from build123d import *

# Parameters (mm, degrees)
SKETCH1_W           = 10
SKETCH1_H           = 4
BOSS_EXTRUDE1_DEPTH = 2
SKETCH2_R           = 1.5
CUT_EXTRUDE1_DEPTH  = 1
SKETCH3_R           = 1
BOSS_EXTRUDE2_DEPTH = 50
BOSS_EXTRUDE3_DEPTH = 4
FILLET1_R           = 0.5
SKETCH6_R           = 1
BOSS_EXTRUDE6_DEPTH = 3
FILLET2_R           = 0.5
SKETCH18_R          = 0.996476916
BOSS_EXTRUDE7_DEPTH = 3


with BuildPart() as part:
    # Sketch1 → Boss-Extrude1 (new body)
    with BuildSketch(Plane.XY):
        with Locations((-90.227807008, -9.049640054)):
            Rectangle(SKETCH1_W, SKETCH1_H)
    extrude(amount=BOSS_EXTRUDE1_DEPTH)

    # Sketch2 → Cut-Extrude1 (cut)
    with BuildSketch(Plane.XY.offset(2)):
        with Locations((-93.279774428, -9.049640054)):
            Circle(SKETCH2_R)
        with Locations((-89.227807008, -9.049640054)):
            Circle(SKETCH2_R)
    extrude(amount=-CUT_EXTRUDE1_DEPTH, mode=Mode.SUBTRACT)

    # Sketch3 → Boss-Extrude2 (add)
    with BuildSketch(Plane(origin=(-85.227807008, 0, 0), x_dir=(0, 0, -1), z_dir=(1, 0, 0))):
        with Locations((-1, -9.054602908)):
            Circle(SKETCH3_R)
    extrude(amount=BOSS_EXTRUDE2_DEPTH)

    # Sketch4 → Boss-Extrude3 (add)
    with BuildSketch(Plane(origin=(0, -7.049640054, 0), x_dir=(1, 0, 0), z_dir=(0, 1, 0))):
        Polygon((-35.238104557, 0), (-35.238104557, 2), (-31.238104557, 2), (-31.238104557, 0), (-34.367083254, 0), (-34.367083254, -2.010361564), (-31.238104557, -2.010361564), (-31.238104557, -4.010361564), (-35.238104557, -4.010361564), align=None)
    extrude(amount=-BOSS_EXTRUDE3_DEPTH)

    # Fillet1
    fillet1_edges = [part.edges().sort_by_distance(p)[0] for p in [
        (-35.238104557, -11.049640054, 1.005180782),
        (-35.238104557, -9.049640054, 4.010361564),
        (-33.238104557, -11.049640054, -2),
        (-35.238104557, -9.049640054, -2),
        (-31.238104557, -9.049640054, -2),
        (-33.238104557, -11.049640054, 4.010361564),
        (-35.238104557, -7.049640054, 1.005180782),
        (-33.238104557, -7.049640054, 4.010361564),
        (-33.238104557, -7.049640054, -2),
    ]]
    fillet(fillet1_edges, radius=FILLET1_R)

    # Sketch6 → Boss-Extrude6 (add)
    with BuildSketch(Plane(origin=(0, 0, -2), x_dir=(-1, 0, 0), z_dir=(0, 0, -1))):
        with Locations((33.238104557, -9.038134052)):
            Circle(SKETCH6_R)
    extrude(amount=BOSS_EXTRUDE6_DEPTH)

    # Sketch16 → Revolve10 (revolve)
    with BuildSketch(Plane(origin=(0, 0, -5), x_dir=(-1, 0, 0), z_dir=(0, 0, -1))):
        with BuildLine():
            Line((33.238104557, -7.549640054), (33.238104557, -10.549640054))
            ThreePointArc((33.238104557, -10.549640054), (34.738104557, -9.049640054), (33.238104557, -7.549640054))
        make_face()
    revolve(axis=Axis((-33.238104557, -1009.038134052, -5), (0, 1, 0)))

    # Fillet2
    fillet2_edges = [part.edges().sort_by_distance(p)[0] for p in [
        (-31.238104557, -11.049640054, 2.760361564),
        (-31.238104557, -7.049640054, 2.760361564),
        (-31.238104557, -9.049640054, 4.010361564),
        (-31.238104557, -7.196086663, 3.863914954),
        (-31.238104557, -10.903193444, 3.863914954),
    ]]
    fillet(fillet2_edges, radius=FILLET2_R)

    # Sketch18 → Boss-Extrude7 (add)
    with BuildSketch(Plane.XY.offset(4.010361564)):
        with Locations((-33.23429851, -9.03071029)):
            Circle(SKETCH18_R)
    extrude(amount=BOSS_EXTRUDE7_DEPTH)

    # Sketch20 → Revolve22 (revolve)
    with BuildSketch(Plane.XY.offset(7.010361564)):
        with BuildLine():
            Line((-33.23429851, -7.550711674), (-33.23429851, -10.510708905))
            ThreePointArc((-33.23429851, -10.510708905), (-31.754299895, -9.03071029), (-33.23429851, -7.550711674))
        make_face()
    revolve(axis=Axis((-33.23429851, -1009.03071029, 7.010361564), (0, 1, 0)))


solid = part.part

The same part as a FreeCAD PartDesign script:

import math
import FreeCAD as App
import Part
import Sketcher

V = App.Vector


def edges_at(feature, points):
    """Names of the edges that pass closest to the given points."""
    edges = feature.Shape.Edges
    near = lambda p: min(range(len(edges)), key=lambda i: edges[i].distToShape(Part.Vertex(*p))[0])
    return sorted({f"Edge{near(p) + 1}" for p in points})

doc = App.newDocument("Part")
body = doc.addObject("PartDesign::Body", "Body")

# Sketch on XY plane
sketch1 = body.newObject("Sketcher::SketchObject", "Sketch")
sketch1.AttachmentSupport = (doc.getObject("XY_Plane"), [""])
sketch1.MapMode = "FlatFace"
sketch1.addGeometry([
    Part.LineSegment(V(-95.227807, -7.04964, 0), V(-95.227807, -11.04964, 0)),
    Part.LineSegment(V(-95.227807, -11.04964, 0), V(-85.227807, -11.04964, 0)),
    Part.LineSegment(V(-85.227807, -11.04964, 0), V(-85.227807, -7.04964, 0)),
    Part.LineSegment(V(-85.227807, -7.04964, 0), V(-95.227807, -7.04964, 0)),
], False)
sketch1.addConstraint([
    Sketcher.Constraint("Coincident", 0, 2, 1, 1),
    Sketcher.Constraint("Coincident", 1, 2, 2, 1),
    Sketcher.Constraint("Coincident", 2, 2, 3, 1),
    Sketcher.Constraint("Coincident", 3, 2, 0, 1),
    Sketcher.Constraint("Vertical", 0),
    Sketcher.Constraint("Horizontal", 1),
    Sketcher.Constraint("Vertical", 2),
    Sketcher.Constraint("Horizontal", 3),
    Sketcher.Constraint("DistanceX", 1, 1, 1, 2, 10.0),
    Sketcher.Constraint("DistanceY", 0, 2, 0, 1, 4.0),
    Sketcher.Constraint("DistanceY", 0, 2, -1, 1, 11.04964),
    Sketcher.Constraint("DistanceX", 0, 2, -1, 1, 95.227807),
])
pad1 = body.newObject("PartDesign::Pad", "Pad")
pad1.Profile = sketch1
pad1.Length = 2

# Sketch on XY plane
sketch2 = body.newObject("Sketcher::SketchObject", "Sketch001")
sketch2.AttachmentSupport = (doc.getObject("XY_Plane"), [""])
sketch2.MapMode = "FlatFace"
sketch2.AttachmentOffset = App.Placement(V(0, 0, 2), App.Rotation())
sketch2.addGeometry([
    Part.Circle(V(-93.279774, -9.04964, 0), V(0, 0, 1), 1.5),
    Part.Circle(V(-89.227807, -9.04964, 0), V(0, 0, 1), 1.5),
], False)
sketch2.addConstraint([
    Sketcher.Constraint("Equal", 0, 1),
    Sketcher.Constraint("Horizontal", 0, 3, 1, 3),
    Sketcher.Constraint("Diameter", 0, 3.0),
    Sketcher.Constraint("DistanceY", 0, 3, -1, 1, 9.04964),
    Sketcher.Constraint("DistanceX", 0, 3, -1, 1, 93.279774),
    Sketcher.Constraint("DistanceX", 1, 3, -1, 1, 89.227807),
])
pocket1 = body.newObject("PartDesign::Pocket", "Pocket")
pocket1.Profile = sketch2
pocket1.Length = 1

# Sketch on YZ plane
sketch3 = body.newObject("Sketcher::SketchObject", "Sketch002")
sketch3.AttachmentSupport = (doc.getObject("YZ_Plane"), [""])
sketch3.MapMode = "FlatFace"
sketch3.AttachmentOffset = App.Placement(V(0, 0, -85.227807), App.Rotation())
sketch3.addGeometry(Part.Circle(V(-9.054603, 1, 0), V(0, 0, 1), 1), False)
sketch3.addConstraint([
    Sketcher.Constraint("Diameter", 0, 2.0),
    Sketcher.Constraint("DistanceY", -1, 1, 0, 3, 1.0),
    Sketcher.Constraint("DistanceX", 0, 3, -1, 1, 9.054603),
])
pad2 = body.newObject("PartDesign::Pad", "Pad001")
pad2.Profile = sketch3
pad2.Length = 50

# Sketch on XZ plane
sketch4 = body.newObject("Sketcher::SketchObject", "Sketch003")
sketch4.AttachmentSupport = (doc.getObject("XZ_Plane"), [""])
sketch4.MapMode = "FlatFace"
sketch4.AttachmentOffset = App.Placement(V(0, 0, 7.04964), App.Rotation())
sketch4.addGeometry([
    Part.LineSegment(V(-35.238105, -2, 0), V(-35.238105, 4.010362, 0)),  # 0
    Part.LineSegment(V(-35.238105, 4.010362, 0), V(-31.238105, 4.010362, 0)),  # 1
    Part.LineSegment(V(-31.238105, 4.010362, 0), V(-31.238105, 2.010362, 0)),  # 2
    Part.LineSegment(V(-31.238105, 2.010362, 0), V(-34.367083, 2.010362, 0)),  # 3
    Part.LineSegment(V(-34.367083, 2.010362, 0), V(-34.367083, 0, 0)),  # 4
    Part.LineSegment(V(-34.367083, 0, 0), V(-31.238105, 0, 0)),  # 5
    Part.LineSegment(V(-31.238105, 0, 0), V(-31.238105, -2, 0)),  # 6
    Part.LineSegment(V(-31.238105, -2, 0), V(-35.238105, -2, 0)),  # 7
], False)
sketch4.addConstraint([
    Sketcher.Constraint("Coincident", 0, 2, 1, 1),
    Sketcher.Constraint("Coincident", 1, 2, 2, 1),
    Sketcher.Constraint("Coincident", 2, 2, 3, 1),
    Sketcher.Constraint("Coincident", 3, 2, 4, 1),
    Sketcher.Constraint("Coincident", 4, 2, 5, 1),
    Sketcher.Constraint("Coincident", 5, 2, 6, 1),
    Sketcher.Constraint("Coincident", 6, 2, 7, 1),
    Sketcher.Constraint("Coincident", 7, 2, 0, 1),
    Sketcher.Constraint("Vertical", 0),
    Sketcher.Constraint("Horizontal", 1),
    Sketcher.Constraint("Vertical", 2),
    Sketcher.Constraint("Horizontal", 3),
    Sketcher.Constraint("Vertical", 4),
    Sketcher.Constraint("Horizontal", 5),
    Sketcher.Constraint("Vertical", 6),
    Sketcher.Constraint("Horizontal", 7),
    Sketcher.Constraint("PointOnObject", 4, 2, -1),
    Sketcher.Constraint("Vertical", 2, 2, 5, 2),
    Sketcher.Constraint("Equal", 2, 6),
    Sketcher.Constraint("DistanceX", 1, 1, 1, 2, 4.0),
    Sketcher.Constraint("DistanceY", 2, 2, 2, 1, 2.0),
    Sketcher.Constraint("DistanceX", 3, 2, 3, 1, 3.128979),
    Sketcher.Constraint("DistanceY", 0, 1, 0, 2, 6.010362),
    Sketcher.Constraint("DistanceX", 0, 2, -1, 1, 35.238105),
])
pad3 = body.newObject("PartDesign::Pad", "Pad002")
pad3.Profile = sketch4
pad3.Length = 4
doc.recompute()

fillet = body.newObject("PartDesign::Fillet", "Fillet")
fillet.Base = (pad3, edges_at(pad3, [
    (-35.238, -11.05, 1.005),
    (-35.238, -9.05, 4.01),
    (-33.238, -11.05, -2),
    (-35.238, -9.05, -2),
    (-31.238, -9.05, -2),
    (-33.238, -11.05, 4.01),
    (-35.238, -7.05, 1.005),
    (-33.238, -7.05, 4.01),
    (-33.238, -7.05, -2),
]))
fillet.Radius = 0.5

# Sketch on XY plane
sketch5 = body.newObject("Sketcher::SketchObject", "Sketch004")
sketch5.AttachmentSupport = (doc.getObject("XY_Plane"), [""])
sketch5.MapMode = "FlatFace"
sketch5.AttachmentOffset = App.Placement(V(0, 0, -2), App.Rotation())
sketch5.addGeometry(Part.Circle(V(-33.238105, -9.038134, 0), V(0, 0, 1), 1), False)
sketch5.addConstraint([
    Sketcher.Constraint("Diameter", 0, 2.0),
    Sketcher.Constraint("DistanceX", 0, 3, -1, 1, 33.238105),
    Sketcher.Constraint("DistanceY", 0, 3, -1, 1, 9.038134),
])
pad4 = body.newObject("PartDesign::Pad", "Pad003")
pad4.Profile = sketch5
pad4.Length = 3
pad4.Reversed = True

# Sketch on XY plane
sketch6 = body.newObject("Sketcher::SketchObject", "Sketch005")
sketch6.AttachmentSupport = (doc.getObject("XY_Plane"), [""])
sketch6.MapMode = "FlatFace"
sketch6.AttachmentOffset = App.Placement(V(0, 0, -5), App.Rotation())
sketch6.addGeometry([
    Part.LineSegment(V(-33.238105, -7.54964, 0), V(-33.238105, -10.54964, 0)),
    Part.ArcOfCircle(Part.Circle(V(-33.238105, -9.04964, 0), V(0, 0, 1), 1.5), math.radians(90), math.radians(270)),
], False)
sketch6.addGeometry(Part.LineSegment(V(-33.238105, -10.54964, 0), V(-33.238105, -7.54964, 0)), True)  # axis
sketch6.addConstraint([
    Sketcher.Constraint("Coincident", 0, 1, 1, 1),
    Sketcher.Constraint("Coincident", 1, 2, 0, 2),
    Sketcher.Constraint("Vertical", 0),
    Sketcher.Constraint("Vertical", 2),
    Sketcher.Constraint("Coincident", 2, 1, 1, 2),
    Sketcher.Constraint("Vertical", 1, 3, 0, 1),
    Sketcher.Constraint("Equal", 0, 2),
    Sketcher.Constraint("Radius", 1, 1.5),
    Sketcher.Constraint("DistanceY", 1, 3, -1, 1, 9.04964),
    Sketcher.Constraint("DistanceX", 1, 3, -1, 1, 33.238105),
])
revolution = body.newObject("PartDesign::Revolution", "Revolution")
revolution.Profile = sketch6
revolution.ReferenceAxis = (sketch6, ["Axis0"])
revolution.Angle = 360
doc.recompute()

fillet2 = body.newObject("PartDesign::Fillet", "Fillet001")
fillet2.Base = (revolution, edges_at(revolution, [
    (-31.238, -11.05, 2.76),
    (-31.238, -7.05, 2.76),
    (-31.238, -9.05, 4.01),
    (-31.238, -7.196, 3.864),
    (-31.238, -10.903, 3.864),
]))
fillet2.Radius = 0.5

# Sketch on XY plane
sketch7 = body.newObject("Sketcher::SketchObject", "Sketch006")
sketch7.AttachmentSupport = (doc.getObject("XY_Plane"), [""])
sketch7.MapMode = "FlatFace"
sketch7.AttachmentOffset = App.Placement(V(0, 0, 4.010362), App.Rotation())
sketch7.addGeometry(Part.Circle(V(-33.234299, -9.03071, 0), V(0, 0, 1), 0.996477), False)
sketch7.addConstraint([
    Sketcher.Constraint("Diameter", 0, 1.992954),
    Sketcher.Constraint("DistanceX", 0, 3, -1, 1, 33.234299),
    Sketcher.Constraint("DistanceY", 0, 3, -1, 1, 9.03071),
])
pad5 = body.newObject("PartDesign::Pad", "Pad004")
pad5.Profile = sketch7
pad5.Length = 3

# Sketch on XY plane
sketch8 = body.newObject("Sketcher::SketchObject", "Sketch007")
sketch8.AttachmentSupport = (doc.getObject("XY_Plane"), [""])
sketch8.MapMode = "FlatFace"
sketch8.AttachmentOffset = App.Placement(V(0, 0, 7.010362), App.Rotation())
sketch8.addGeometry([
    Part.LineSegment(V(-33.234299, -7.550712, 0), V(-33.234299, -10.510709, 0)),
    Part.ArcOfCircle(Part.Circle(V(-33.234299, -9.03071, 0), V(0, 0, 1), 1.479999), math.radians(-90), math.radians(90)),
], False)
sketch8.addGeometry(Part.LineSegment(V(-33.234299, -10.510709, 0), V(-33.234299, -7.550712, 0)), True)  # axis
sketch8.addConstraint([
    Sketcher.Constraint("Coincident", 0, 1, 1, 2),
    Sketcher.Constraint("Coincident", 1, 1, 0, 2),
    Sketcher.Constraint("Vertical", 0),
    Sketcher.Constraint("Vertical", 2),
    Sketcher.Constraint("Coincident", 2, 1, 1, 1),
    Sketcher.Constraint("Vertical", 1, 3, 0, 1),
    Sketcher.Constraint("Equal", 0, 2),
    Sketcher.Constraint("Radius", 1, 1.479999),
    Sketcher.Constraint("DistanceX", 1, 3, -1, 1, 33.234299),
    Sketcher.Constraint("DistanceY", 1, 3, -1, 1, 9.03071),
])
revolution2 = body.newObject("PartDesign::Revolution", "Revolution001")
revolution2.Profile = sketch8
revolution2.ReferenceAxis = (sketch8, ["Axis0"])
revolution2.Angle = 360

doc.recompute()
